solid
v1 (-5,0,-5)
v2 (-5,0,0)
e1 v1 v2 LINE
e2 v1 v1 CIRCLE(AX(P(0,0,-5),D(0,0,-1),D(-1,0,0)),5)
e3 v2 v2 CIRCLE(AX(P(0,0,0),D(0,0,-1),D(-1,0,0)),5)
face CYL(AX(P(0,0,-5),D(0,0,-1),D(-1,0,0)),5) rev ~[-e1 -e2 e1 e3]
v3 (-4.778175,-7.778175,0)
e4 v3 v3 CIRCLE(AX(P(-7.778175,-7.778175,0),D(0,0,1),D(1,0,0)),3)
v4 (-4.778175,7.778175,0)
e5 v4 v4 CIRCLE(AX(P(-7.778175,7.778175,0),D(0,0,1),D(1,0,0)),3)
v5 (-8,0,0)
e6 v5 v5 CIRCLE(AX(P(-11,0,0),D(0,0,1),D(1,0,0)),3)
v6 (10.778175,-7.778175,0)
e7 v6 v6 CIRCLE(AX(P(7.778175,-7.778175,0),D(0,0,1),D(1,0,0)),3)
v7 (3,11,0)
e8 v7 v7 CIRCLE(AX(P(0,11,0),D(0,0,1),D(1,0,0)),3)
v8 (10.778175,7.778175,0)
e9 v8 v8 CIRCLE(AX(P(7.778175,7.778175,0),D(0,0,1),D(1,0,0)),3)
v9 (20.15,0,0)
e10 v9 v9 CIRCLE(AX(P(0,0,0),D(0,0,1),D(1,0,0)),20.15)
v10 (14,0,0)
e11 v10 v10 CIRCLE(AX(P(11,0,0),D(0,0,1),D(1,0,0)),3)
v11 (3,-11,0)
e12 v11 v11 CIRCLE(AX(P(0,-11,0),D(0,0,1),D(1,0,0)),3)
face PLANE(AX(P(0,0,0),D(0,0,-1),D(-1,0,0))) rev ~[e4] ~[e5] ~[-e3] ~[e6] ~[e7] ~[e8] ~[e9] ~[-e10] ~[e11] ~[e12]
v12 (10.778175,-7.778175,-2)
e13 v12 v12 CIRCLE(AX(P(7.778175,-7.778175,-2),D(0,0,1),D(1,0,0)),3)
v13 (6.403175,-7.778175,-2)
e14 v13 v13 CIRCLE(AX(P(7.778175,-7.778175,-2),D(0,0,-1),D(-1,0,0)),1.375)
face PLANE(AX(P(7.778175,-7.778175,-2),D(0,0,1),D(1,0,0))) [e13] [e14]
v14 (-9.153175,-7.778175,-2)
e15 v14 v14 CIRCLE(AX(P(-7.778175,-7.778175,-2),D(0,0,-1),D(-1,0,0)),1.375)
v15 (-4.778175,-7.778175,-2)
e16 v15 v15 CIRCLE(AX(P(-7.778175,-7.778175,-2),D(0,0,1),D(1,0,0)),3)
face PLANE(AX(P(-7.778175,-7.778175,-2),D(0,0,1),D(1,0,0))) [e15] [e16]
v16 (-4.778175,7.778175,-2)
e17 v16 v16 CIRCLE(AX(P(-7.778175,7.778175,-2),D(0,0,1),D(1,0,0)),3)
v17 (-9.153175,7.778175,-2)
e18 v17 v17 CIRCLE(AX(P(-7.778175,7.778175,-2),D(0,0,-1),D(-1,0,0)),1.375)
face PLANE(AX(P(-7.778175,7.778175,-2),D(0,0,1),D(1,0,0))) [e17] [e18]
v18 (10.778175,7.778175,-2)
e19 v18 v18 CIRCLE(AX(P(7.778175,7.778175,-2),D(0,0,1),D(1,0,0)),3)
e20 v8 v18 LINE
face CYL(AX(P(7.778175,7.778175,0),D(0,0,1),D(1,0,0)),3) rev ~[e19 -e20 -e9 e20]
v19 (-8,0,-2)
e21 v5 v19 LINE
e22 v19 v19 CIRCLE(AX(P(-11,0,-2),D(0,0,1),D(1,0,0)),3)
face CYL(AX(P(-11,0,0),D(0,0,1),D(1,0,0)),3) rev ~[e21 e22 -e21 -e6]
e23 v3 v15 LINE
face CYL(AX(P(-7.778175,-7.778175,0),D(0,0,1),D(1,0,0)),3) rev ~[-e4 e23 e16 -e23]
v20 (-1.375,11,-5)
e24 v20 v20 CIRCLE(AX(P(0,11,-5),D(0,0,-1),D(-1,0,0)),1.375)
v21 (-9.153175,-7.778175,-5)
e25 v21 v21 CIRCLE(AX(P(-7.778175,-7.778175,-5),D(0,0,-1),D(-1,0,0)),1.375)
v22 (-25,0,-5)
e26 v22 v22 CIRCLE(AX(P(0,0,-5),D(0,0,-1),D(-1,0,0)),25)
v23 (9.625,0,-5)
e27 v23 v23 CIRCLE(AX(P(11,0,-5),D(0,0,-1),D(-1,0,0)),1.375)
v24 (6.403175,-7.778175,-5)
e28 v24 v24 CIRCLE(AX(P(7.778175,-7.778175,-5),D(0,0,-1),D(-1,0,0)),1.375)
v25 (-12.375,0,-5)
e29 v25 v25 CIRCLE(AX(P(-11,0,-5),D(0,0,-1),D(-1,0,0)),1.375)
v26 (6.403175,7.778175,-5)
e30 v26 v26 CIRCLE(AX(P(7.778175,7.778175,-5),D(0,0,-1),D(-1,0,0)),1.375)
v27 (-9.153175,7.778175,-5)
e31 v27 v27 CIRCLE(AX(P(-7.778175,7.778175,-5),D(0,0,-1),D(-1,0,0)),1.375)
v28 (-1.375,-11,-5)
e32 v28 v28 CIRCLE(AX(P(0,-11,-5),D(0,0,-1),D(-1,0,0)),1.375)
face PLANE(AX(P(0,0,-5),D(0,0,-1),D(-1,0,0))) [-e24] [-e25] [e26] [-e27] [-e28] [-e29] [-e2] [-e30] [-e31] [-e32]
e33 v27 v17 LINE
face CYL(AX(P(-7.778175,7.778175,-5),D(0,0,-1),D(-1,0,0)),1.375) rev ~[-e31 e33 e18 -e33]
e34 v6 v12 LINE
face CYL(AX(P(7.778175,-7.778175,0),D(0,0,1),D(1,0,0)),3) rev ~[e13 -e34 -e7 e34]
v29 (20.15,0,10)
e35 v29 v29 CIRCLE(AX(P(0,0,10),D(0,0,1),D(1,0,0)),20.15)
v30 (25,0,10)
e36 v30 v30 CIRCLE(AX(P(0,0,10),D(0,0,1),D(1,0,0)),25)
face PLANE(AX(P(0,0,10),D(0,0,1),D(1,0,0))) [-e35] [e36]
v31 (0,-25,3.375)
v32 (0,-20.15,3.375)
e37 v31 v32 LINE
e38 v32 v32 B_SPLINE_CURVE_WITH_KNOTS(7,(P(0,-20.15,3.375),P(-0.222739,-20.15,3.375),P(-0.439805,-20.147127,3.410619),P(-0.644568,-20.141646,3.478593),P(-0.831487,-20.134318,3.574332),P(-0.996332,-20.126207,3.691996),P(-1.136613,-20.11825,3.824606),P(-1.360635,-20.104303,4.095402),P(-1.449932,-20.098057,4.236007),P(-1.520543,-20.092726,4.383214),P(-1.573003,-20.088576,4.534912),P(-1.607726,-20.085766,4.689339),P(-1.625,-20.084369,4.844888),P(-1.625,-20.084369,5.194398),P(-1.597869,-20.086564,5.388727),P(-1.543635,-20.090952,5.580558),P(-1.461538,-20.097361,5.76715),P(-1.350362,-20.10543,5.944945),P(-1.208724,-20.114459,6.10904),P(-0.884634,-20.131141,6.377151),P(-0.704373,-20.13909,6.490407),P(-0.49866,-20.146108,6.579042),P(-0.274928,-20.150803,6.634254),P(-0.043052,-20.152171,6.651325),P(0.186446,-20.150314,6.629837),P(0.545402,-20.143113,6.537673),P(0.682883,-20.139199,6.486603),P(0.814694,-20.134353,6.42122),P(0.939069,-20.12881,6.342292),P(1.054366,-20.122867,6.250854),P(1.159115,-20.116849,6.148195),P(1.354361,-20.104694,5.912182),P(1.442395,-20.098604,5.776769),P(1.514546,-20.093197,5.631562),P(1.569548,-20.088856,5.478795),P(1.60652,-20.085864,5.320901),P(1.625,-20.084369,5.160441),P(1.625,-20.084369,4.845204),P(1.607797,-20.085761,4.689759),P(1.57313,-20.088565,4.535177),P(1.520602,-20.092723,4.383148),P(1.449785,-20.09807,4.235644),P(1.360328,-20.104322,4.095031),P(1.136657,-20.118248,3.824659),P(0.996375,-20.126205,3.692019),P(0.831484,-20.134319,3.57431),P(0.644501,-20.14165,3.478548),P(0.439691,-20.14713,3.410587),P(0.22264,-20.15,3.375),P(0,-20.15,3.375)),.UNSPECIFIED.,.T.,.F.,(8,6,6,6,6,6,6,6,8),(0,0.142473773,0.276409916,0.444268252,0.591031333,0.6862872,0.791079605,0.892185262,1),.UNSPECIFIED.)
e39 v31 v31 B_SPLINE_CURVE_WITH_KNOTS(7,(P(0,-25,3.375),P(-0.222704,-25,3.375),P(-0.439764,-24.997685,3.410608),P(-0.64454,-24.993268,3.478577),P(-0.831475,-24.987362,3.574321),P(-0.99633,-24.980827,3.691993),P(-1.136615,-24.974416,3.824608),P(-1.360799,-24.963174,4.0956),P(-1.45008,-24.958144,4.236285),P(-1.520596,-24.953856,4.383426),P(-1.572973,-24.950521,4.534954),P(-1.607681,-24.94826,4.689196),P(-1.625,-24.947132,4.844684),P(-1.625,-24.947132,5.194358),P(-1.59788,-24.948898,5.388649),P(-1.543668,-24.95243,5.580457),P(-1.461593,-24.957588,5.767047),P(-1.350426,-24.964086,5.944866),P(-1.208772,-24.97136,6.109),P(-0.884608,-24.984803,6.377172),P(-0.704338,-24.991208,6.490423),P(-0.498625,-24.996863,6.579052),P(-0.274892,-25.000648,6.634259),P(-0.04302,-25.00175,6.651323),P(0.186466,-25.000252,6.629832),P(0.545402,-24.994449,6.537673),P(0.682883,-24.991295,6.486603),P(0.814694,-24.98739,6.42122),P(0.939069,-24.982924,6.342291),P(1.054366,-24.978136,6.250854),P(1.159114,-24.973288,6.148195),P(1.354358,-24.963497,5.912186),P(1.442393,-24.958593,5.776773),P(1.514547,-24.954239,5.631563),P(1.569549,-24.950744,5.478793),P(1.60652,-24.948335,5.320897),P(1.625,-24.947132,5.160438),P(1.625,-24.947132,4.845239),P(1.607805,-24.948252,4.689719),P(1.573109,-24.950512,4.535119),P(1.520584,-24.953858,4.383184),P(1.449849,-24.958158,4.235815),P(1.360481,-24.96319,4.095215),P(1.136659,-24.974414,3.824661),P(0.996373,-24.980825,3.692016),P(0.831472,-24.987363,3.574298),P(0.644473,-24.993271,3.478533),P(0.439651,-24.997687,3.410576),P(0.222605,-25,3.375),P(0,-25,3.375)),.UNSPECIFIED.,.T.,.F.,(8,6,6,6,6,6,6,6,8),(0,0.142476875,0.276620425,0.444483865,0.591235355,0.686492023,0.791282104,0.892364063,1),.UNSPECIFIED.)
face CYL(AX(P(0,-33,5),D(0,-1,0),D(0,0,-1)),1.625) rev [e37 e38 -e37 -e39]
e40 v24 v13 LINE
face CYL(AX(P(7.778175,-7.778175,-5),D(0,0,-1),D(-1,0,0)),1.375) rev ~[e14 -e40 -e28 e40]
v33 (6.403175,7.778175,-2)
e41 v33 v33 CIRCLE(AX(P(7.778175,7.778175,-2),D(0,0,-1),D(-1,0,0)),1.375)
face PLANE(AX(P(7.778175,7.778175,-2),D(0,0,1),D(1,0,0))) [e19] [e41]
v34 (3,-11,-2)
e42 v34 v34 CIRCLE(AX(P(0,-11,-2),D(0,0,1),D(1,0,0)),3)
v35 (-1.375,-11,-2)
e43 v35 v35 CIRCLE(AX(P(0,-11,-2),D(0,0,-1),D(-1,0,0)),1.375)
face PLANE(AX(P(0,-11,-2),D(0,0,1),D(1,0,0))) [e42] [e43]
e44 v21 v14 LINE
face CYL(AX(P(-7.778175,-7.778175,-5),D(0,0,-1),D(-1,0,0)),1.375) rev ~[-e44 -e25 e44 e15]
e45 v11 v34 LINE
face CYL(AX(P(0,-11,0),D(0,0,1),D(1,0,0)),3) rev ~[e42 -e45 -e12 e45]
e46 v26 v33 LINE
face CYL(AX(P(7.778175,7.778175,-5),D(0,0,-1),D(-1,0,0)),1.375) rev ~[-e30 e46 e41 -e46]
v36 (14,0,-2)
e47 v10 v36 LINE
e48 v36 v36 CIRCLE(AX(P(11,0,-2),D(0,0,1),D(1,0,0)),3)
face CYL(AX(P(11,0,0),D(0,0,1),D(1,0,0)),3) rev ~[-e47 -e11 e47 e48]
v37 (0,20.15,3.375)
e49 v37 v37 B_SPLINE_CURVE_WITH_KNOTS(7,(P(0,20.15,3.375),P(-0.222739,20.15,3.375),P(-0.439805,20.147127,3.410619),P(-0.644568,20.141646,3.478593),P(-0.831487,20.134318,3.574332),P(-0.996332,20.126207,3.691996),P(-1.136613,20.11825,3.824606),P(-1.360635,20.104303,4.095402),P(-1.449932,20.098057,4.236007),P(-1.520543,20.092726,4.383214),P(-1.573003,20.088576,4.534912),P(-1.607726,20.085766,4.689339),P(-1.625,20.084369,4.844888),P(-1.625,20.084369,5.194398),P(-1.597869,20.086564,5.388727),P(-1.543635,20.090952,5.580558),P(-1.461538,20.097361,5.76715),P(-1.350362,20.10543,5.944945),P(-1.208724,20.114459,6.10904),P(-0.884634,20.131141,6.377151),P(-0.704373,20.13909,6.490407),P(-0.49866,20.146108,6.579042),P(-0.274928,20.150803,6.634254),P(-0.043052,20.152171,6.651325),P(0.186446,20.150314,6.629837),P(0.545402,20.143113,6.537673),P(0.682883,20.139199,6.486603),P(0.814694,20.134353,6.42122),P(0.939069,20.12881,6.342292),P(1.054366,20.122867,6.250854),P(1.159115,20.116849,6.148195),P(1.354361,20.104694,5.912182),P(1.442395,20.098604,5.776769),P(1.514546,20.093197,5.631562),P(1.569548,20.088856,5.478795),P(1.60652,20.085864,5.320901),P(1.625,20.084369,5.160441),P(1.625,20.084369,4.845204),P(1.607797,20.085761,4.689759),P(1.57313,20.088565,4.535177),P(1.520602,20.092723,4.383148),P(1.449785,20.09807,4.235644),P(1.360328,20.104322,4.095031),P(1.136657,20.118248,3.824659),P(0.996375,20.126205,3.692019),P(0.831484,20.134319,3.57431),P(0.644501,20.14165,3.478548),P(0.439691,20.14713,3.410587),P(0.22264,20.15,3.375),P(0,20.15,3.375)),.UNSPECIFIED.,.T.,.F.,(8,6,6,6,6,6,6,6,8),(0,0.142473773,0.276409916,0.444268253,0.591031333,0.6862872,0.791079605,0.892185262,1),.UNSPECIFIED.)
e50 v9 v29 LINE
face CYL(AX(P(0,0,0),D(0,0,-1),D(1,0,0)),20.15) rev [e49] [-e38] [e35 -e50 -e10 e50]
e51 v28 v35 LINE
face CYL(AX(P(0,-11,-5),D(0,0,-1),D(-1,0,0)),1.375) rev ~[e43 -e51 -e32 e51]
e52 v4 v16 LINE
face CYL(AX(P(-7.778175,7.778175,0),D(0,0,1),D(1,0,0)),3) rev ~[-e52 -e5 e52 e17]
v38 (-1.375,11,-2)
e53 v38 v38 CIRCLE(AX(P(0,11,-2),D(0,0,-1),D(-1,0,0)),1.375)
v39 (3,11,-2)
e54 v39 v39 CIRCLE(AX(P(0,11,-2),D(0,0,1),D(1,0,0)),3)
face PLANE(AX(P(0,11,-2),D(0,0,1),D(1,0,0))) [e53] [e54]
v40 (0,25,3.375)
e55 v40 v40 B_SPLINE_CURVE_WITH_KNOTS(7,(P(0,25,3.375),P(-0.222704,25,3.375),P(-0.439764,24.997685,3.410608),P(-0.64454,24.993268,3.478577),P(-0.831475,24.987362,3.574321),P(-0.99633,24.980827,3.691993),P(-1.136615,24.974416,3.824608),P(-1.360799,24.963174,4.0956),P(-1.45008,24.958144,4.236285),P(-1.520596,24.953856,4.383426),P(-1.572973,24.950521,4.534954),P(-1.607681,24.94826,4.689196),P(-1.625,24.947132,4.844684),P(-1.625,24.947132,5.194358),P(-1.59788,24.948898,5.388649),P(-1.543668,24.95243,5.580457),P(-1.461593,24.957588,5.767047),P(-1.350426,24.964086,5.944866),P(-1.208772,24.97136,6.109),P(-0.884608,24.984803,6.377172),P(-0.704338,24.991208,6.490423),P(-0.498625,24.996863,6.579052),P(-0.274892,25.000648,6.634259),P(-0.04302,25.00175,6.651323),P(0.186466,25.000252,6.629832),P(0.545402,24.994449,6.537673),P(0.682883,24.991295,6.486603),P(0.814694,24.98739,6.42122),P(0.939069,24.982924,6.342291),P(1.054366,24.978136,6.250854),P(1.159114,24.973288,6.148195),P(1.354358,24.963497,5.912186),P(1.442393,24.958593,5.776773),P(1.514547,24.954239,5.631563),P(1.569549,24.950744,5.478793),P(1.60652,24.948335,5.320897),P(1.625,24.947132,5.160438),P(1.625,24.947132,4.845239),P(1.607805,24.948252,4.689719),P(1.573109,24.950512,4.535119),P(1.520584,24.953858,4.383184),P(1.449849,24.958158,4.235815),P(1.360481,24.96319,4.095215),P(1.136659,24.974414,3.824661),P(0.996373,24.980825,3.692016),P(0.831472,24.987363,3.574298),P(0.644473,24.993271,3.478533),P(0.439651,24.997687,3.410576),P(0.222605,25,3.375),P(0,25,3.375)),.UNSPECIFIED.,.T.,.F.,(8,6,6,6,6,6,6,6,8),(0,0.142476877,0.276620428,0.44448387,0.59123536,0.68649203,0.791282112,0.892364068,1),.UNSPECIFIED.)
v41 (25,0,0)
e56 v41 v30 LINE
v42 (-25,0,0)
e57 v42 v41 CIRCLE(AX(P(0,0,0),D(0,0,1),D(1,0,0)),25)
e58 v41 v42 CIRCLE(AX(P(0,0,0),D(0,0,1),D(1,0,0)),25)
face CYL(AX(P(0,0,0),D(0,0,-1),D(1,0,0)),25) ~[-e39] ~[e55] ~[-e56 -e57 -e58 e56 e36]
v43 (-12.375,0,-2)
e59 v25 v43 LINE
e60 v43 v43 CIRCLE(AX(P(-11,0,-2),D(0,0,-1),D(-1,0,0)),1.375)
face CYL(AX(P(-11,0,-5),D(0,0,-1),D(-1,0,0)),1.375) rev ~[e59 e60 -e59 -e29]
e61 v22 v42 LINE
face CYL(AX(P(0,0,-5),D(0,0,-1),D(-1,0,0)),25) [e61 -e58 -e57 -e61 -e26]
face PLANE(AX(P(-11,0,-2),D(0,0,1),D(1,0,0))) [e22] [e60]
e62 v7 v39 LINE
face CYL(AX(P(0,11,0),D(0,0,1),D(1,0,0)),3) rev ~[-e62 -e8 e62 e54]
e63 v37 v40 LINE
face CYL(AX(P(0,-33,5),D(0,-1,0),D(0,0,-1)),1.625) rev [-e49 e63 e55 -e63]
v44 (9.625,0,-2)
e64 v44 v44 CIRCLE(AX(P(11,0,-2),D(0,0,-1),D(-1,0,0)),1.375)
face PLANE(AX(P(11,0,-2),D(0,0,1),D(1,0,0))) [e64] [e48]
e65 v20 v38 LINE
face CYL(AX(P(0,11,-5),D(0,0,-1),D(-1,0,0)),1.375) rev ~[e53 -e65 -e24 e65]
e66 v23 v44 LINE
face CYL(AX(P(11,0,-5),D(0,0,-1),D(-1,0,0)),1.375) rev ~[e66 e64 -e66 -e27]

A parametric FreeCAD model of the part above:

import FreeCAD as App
import Part
import Sketcher
from FreeCAD import Vector

doc = App.newDocument("Part")
params = doc.addObject("Spreadsheet::Sheet", "Params")
for row, (alias, value) in enumerate([
    ("sketch1_diameter", "50 mm"),
    ("sketch1_diameter2", "40.3 mm"),
    ("pad1_length", "10 mm"),
    ("sketch2_diameter", "50 mm"),
    ("sketch2_diameter2", "10 mm"),
    ("sketch2_diameter3", "2.75 mm"),
    ("pad2_length", "5 mm"),
    ("sketch3_diameter", "6 mm"),
    ("pocket1_length", "2 mm"),
    ("sketch4_diameter", "3.25 mm"),
], start=1):
    params.set(f"A{row}", alias)
    params.set(f"B{row}", "=" + value)
    params.setAlias(f"B{row}", alias)

body = doc.addObject("PartDesign::Body", "Body")

sketch1 = body.newObject("Sketcher::SketchObject", "Sketch")
sketch1.AttachmentSupport = (doc.getObject("XY_Plane"), [""])
sketch1.MapMode = "FlatFace"
sketch1.addGeometry(Part.Circle(Vector(0, 0, 0), Vector(0, 0, 1), 25), False)
sketch1.addGeometry(Part.Circle(Vector(0, 0, 0), Vector(0, 0, 1), 20), False)
sketch1.addConstraint(Sketcher.Constraint("Coincident", 0, 3, -1, 1))
sketch1.addConstraint(Sketcher.Constraint("Coincident", 1, 3, -1, 1))
sketch1.addConstraint(Sketcher.Constraint("Diameter", 0, 50.0))
sketch1.addConstraint(Sketcher.Constraint("Diameter", 1, 40.3))
sketch1.setExpression("Constraints[2]", "Params.sketch1_diameter")
sketch1.setExpression("Constraints[3]", "Params.sketch1_diameter2")
pad1 = body.newObject("PartDesign::Pad", "Pad")
pad1.Profile = sketch1
pad1.setExpression("Length", "Params.pad1_length")

sketch2 = body.newObject("Sketcher::SketchObject", "Sketch001")
sketch2.AttachmentSupport = (doc.getObject("XY_Plane"), [""])
sketch2.MapMode = "FlatFace"
sketch2.AttachmentOffset = App.Placement(Vector(0, 0, -5), App.Rotation())
sketch2.addGeometry(Part.Circle(Vector(0, 0, 0), Vector(0, 0, 1), 25), False)
sketch2.addGeometry(Part.Circle(Vector(7.8, -7.8, 0), Vector(0, 0, 1), 1.4), False)
sketch2.addGeometry(Part.Circle(Vector(0, -11, 0), Vector(0, 0, 1), 1.4), False)
sketch2.addGeometry(Part.Circle(Vector(-7.8, -7.8, 0), Vector(0, 0, 1), 1.4), False)
sketch2.addGeometry(Part.Circle(Vector(11, 0, 0), Vector(0, 0, 1), 1.4), False)
sketch2.addGeometry(Part.Circle(Vector(7.8, 7.8, 0), Vector(0, 0, 1), 1.4), False)
sketch2.addGeometry(Part.Circle(Vector(0, 0, 0), Vector(0, 0, 1), 5), False)
sketch2.addGeometry(Part.Circle(Vector(-11, 0, 0), Vector(0, 0, 1), 1.4), False)
sketch2.addGeometry(Part.Circle(Vector(0, 11, 0), Vector(0, 0, 1), 1.4), False)
sketch2.addGeometry(Part.Circle(Vector(-7.8, 7.8, 0), Vector(0, 0, 1), 1.4), False)
sketch2.addConstraint(Sketcher.Constraint("Coincident", 0, 3, -1, 1))
sketch2.addConstraint(Sketcher.Constraint("Coincident", 6, 3, -1, 1))
sketch2.addConstraint(Sketcher.Constraint("Equal", 1, 2))
sketch2.addConstraint(Sketcher.Constraint("Equal", 2, 3))
sketch2.addConstraint(Sketcher.Constraint("Equal", 3, 4))
sketch2.addConstraint(Sketcher.Constraint("Equal", 4, 5))
sketch2.addConstraint(Sketcher.Constraint("Equal", 5, 7))
sketch2.addConstraint(Sketcher.Constraint("Equal", 7, 8))
sketch2.addConstraint(Sketcher.Constraint("Equal", 8, 9))
sketch2.addConstraint(Sketcher.Constraint("Symmetric", 3, 3, 5, 3, -1, 1))
sketch2.addConstraint(Sketcher.Constraint("Symmetric", 4, 3, 7, 3, -1, 1))
sketch2.addConstraint(Sketcher.Constraint("Symmetric", 2, 3, 8, 3, -1, 1))
sketch2.addConstraint(Sketcher.Constraint("Symmetric", 1, 3, 9, 3, -1, 1))
sketch2.addConstraint(Sketcher.Constraint("Symmetric", 1, 3, 3, 3, -2))
sketch2.addConstraint(Sketcher.Constraint("PointOnObject", 2, 3, -2))
sketch2.addConstraint(Sketcher.Constraint("PointOnObject", 4, 3, -1))
sketch2.addConstraint(Sketcher.Constraint("Diameter", 0, 50.0))
sketch2.addConstraint(Sketcher.Constraint("Diameter", 6, 10.0))
sketch2.addConstraint(Sketcher.Constraint("Diameter", 1, 2.75))
sketch2.addConstraint(Sketcher.Constraint("DistanceY", 2, 3, -1, 1, 11.0))
sketch2.addConstraint(Sketcher.Constraint("DistanceX", -1, 1, 4, 3, 11.0))
sketch2.addConstraint(Sketcher.Constraint("DistanceX", 3, 3, 1, 3, 15.556349))
sketch2.addConstraint(Sketcher.Constraint("DistanceY", 1, 3, 5, 3, 15.556349))
sketch2.setExpression("Constraints[16]", "Params.sketch2_diameter")
sketch2.setExpression("Constraints[17]", "Params.sketch2_diameter2")
sketch2.setExpression("Constraints[18]", "Params.sketch2_diameter3")
pad2 = body.newObject("PartDesign::Pad", "Pad001")
pad2.Profile = sketch2
pad2.setExpression("Length", "Params.pad2_length")

sketch3 = body.newObject("Sketcher::SketchObject", "Sketch002")
sketch3.AttachmentSupport = (doc.getObject("XY_Plane"), [""])
sketch3.MapMode = "FlatFace"
sketch3.addGeometry(Part.Circle(Vector(0, 11, 0), Vector(0, 0, 1), 3), False)
sketch3.addGeometry(Part.Circle(Vector(7.8, 7.8, 0), Vector(0, 0, 1), 3), False)
sketch3.addGeometry(Part.Circle(Vector(11, 0, 0), Vector(0, 0, 1), 3), False)
sketch3.addGeometry(Part.Circle(Vector(7.8, -7.8, 0), Vector(0, 0, 1), 3), False)
sketch3.addGeometry(Part.Circle(Vector(0, -11, 0), Vector(0, 0, 1), 3), False)
sketch3.addGeometry(Part.Circle(Vector(-7.8, -7.8, 0), Vector(0, 0, 1), 3), False)
sketch3.addGeometry(Part.Circle(Vector(-11, 0, 0), Vector(0, 0, 1), 3), False)
sketch3.addGeometry(Part.Circle(Vector(-7.8, 7.8, 0), Vector(0, 0, 1), 3), False)
sketch3.addConstraint(Sketcher.Constraint("Equal", 0, 1))
sketch3.addConstraint(Sketcher.Constraint("Equal", 1, 2))
sketch3.addConstraint(Sketcher.Constraint("Equal", 2, 3))
sketch3.addConstraint(Sketcher.Constraint("Equal", 3, 4))
sketch3.addConstraint(Sketcher.Constraint("Equal", 4, 5))
sketch3.addConstraint(Sketcher.Constraint("Equal", 5, 6))
sketch3.addConstraint(Sketcher.Constraint("Equal", 6, 7))
sketch3.addConstraint(Sketcher.Constraint("Symmetric", 0, 3, 4, 3, -1, 1))
sketch3.addConstraint(Sketcher.Constraint("Symmetric", 1, 3, 5, 3, -1, 1))
sketch3.addConstraint(Sketcher.Constraint("Symmetric", 2, 3, 6, 3, -1, 1))
sketch3.addConstraint(Sketcher.Constraint("Symmetric", 3, 3, 7, 3, -1, 1))
sketch3.addConstraint(Sketcher.Constraint("Symmetric", 3, 3, 5, 3, -2))
sketch3.addConstraint(Sketcher.Constraint("PointOnObject", 0, 3, -2))
sketch3.addConstraint(Sketcher.Constraint("PointOnObject", 2, 3, -1))
sketch3.addConstraint(Sketcher.Constraint("Diameter", 0, 6.0))
sketch3.addConstraint(Sketcher.Constraint("DistanceY", -1, 1, 0, 3, 11.0))
sketch3.addConstraint(Sketcher.Constraint("DistanceX", -1, 1, 2, 3, 11.0))
sketch3.addConstraint(Sketcher.Constraint("DistanceY", 3, 3, 1, 3, 15.556349))
sketch3.addConstraint(Sketcher.Constraint("DistanceX", 5, 3, 3, 3, 15.556349))
sketch3.setExpression("Constraints[14]", "Params.sketch3_diameter")
pocket1 = body.newObject("PartDesign::Pocket", "Pocket")
pocket1.Profile = sketch3
pocket1.setExpression("Length", "Params.pocket1_length")

sketch4 = body.newObject("Sketcher::SketchObject", "Sketch003")
sketch4.AttachmentSupport = (doc.getObject("XZ_Plane"), [""])
sketch4.MapMode = "FlatFace"
sketch4.addGeometry(Part.Circle(Vector(0, 5, 0), Vector(0, 0, 1), 1.6), False)
sketch4.addConstraint(Sketcher.Constraint("PointOnObject", 0, 3, -2))
sketch4.addConstraint(Sketcher.Constraint("Diameter", 0, 3.25))
sketch4.addConstraint(Sketcher.Constraint("DistanceY", -1, 1, 0, 3, 5.0))
sketch4.setExpression("Constraints[1]", "Params.sketch4_diameter")
pocket2 = body.newObject("PartDesign::Pocket", "Pocket001")
pocket2.Profile = sketch4
pocket2.Type = "ThroughAll"
pocket2.Midplane = True

doc.recompute()
